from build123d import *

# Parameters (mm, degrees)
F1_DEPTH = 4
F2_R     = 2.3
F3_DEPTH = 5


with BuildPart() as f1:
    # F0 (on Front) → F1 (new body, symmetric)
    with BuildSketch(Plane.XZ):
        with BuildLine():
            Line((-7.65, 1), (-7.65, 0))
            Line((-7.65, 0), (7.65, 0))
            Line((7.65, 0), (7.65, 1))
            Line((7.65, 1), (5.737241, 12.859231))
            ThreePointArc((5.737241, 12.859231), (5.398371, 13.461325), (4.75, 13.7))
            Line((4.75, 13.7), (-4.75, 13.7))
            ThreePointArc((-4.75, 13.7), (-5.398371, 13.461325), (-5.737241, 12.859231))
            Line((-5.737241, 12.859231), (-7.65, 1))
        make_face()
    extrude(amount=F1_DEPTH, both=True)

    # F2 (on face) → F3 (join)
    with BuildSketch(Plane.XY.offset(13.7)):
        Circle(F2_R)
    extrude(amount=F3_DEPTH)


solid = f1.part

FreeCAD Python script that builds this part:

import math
import FreeCAD as App
import Part
import Sketcher

V = App.Vector
Q = App.Units.Quantity

doc = App.newDocument("Part")
body = doc.addObject("PartDesign::Body", "Body")

# Sketch on XZ plane
sketch1 = body.newObject("Sketcher::SketchObject", "Sketch")
sketch1.AttachmentSupport = (doc.getObject("XZ_Plane"), [""])
sketch1.MapMode = "FlatFace"
sketch1.addGeometry([
    Part.LineSegment(V(-7.65, 1, 0), V(-7.65, 0, 0)),  # 0
    Part.LineSegment(V(-7.65, 0, 0), V(7.65, 0, 0)),  # 1
    Part.LineSegment(V(7.65, 0, 0), V(7.65, 1, 0)),  # 2
    Part.LineSegment(V(7.65, 1, 0), V(5.737241, 12.859231, 0)),  # 3
    Part.ArcOfCircle(Part.Circle(V(4.750001, 12.700002, 0), V(0, 0, 1), 0.999998), math.radians(9.162173), math.radians(90.000071)),  # 4
    Part.LineSegment(V(4.75, 13.7, 0), V(-4.75, 13.7, 0)),  # 5
    Part.ArcOfCircle(Part.Circle(V(-4.750001, 12.700002, 0), V(0, 0, 1), 0.999998), math.radians(89.999929), math.radians(170.837827)),  # 6
    Part.LineSegment(V(-5.737241, 12.859231, 0), V(-7.65, 1, 0)),  # 7
], False)
sketch1.addConstraint([
    Sketcher.Constraint("Coincident", 0, 2, 1, 1),
    Sketcher.Constraint("Coincident", 1, 2, 2, 1),
    Sketcher.Constraint("Coincident", 2, 2, 3, 1),
    Sketcher.Constraint("Tangent", 3, 2, 4, 1),
    Sketcher.Constraint("Tangent", 4, 2, 5, 1),
    Sketcher.Constraint("Tangent", 5, 2, 6, 1),
    Sketcher.Constraint("Tangent", 6, 2, 7, 1),
    Sketcher.Constraint("Coincident", 7, 2, 0, 1),
    Sketcher.Constraint("Vertical", 0),
    Sketcher.Constraint("Horizontal", 1),
    Sketcher.Constraint("Vertical", 2),
    Sketcher.Constraint("Horizontal", 5),
    Sketcher.Constraint("Equal", 4, 6),
    Sketcher.Constraint("Symmetric", 0, 2, 1, 2, -1, 1),
    Sketcher.Constraint("Symmetric", 3, 2, 6, 2, -2),
    Sketcher.Constraint("Radius", 4, Q("0.999998 mm")),
    Sketcher.Constraint("DistanceY", 0, 2, 0, 1, Q("1 mm")),
    Sketcher.Constraint("DistanceX", 1, 1, 1, 2, Q("15.3 mm")),
    Sketcher.Constraint("DistanceX", 5, 2, 5, 1, Q("9.5 mm")),
    Sketcher.Constraint("DistanceY", -1, 1, 4, 3, Q("12.700002 mm")),
])
pad1 = body.newObject("PartDesign::Pad", "Pad")
pad1.Profile = sketch1
pad1.Length = 8
pad1.Midplane = True

# Sketch on XY plane
sketch2 = body.newObject("Sketcher::SketchObject", "Sketch001")
sketch2.AttachmentSupport = (doc.getObject("XY_Plane"), [""])
sketch2.MapMode = "FlatFace"
sketch2.AttachmentOffset = App.Placement(V(0, 0, 13.7), App.Rotation())
sketch2.addGeometry(Part.Circle(V(0, 0, 0), V(0, 0, 1), 2.3), False)
sketch2.addConstraint([
    Sketcher.Constraint("Coincident", 0, 3, -1, 1),
    Sketcher.Constraint("Diameter", 0, Q("4.6 mm")),
])
pad2 = body.newObject("PartDesign::Pad", "Pad001")
pad2.Profile = sketch2
pad2.Length = 5

doc.recompute()
